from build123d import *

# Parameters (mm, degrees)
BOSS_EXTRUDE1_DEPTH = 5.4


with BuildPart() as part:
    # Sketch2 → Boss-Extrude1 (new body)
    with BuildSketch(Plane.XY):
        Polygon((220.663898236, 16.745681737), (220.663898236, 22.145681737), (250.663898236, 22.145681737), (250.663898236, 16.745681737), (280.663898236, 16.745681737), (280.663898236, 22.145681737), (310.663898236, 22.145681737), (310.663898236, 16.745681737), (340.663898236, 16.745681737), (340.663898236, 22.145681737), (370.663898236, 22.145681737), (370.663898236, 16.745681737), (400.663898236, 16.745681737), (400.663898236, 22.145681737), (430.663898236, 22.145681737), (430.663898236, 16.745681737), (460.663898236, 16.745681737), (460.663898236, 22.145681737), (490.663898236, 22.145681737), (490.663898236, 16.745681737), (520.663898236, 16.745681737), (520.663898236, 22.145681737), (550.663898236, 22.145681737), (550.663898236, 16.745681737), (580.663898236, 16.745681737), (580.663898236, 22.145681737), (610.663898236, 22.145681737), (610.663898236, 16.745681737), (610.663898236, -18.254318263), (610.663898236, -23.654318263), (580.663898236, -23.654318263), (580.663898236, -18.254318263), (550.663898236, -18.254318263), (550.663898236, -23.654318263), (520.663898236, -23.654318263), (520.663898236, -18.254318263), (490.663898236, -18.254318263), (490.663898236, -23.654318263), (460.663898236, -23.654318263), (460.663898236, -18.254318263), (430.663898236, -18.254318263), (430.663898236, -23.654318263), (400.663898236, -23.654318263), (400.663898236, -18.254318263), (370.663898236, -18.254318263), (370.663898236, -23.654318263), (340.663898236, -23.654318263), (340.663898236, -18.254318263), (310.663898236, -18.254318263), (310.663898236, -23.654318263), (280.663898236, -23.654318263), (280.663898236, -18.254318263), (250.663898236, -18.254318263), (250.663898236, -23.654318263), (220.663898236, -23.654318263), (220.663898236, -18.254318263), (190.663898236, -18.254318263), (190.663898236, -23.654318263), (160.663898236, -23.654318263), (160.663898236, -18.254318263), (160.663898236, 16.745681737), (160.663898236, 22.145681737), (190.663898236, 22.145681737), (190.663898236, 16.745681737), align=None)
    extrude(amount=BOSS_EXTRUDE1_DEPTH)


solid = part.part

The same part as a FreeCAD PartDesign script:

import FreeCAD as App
import Part
import Sketcher

doc = App.newDocument("Part")
body = doc.addObject("PartDesign::Body", "Body")

sketch1 = doc.addObject("Sketcher::SketchObject", "Sketch")
body.addObject(sketch1)
sketch1.AttachmentSupport = (doc.XY_Plane, [""])
sketch1.MapMode = "FlatFace"
sketch1.addGeometry(Part.LineSegment(App.Vector(220.663898, 22.145682, 0), App.Vector(220.663898, 16.745682, 0)), False)
sketch1.addGeometry(Part.LineSegment(App.Vector(220.663898, 16.745682, 0), App.Vector(190.663898, 16.745682, 0)), False)
sketch1.addGeometry(Part.LineSegment(App.Vector(190.663898, 16.745682, 0), App.Vector(190.663898, 22.145682, 0)), False)
sketch1.addGeometry(Part.LineSegment(App.Vector(190.663898, 22.145682, 0), App.Vector(160.663898, 22.145682, 0)), False)
sketch1.addGeometry(Part.LineSegment(App.Vector(160.663898, 22.145682, 0), App.Vector(160.663898, -23.654318, 0)), False)
sketch1.addGeometry(Part.LineSegment(App.Vector(160.663898, -23.654318, 0), App.Vector(190.663898, -23.654318, 0)), False)
sketch1.addGeometry(Part.LineSegment(App.Vector(190.663898, -23.654318, 0), App.Vector(190.663898, -18.254318, 0)), False)
sketch1.addGeometry(Part.LineSegment(App.Vector(190.663898, -18.254318, 0), App.Vector(220.663898, -18.254318, 0)), False)
sketch1.addGeometry(Part.LineSegment(App.Vector(220.663898, -18.254318, 0), App.Vector(220.663898, -23.654318, 0)), False)
sketch1.addGeometry(Part.LineSegment(App.Vector(220.663898, -23.654318, 0), App.Vector(250.663898, -23.654318, 0)), False)
sketch1.addGeometry(Part.LineSegment(App.Vector(250.663898, -23.654318, 0), App.Vector(250.663898, -18.254318, 0)), False)
sketch1.addGeometry(Part.LineSegment(App.Vector(250.663898, -18.254318, 0), App.Vector(280.663898, -18.254318, 0)), False)
sketch1.addGeometry(Part.LineSegment(App.Vector(280.663898, -18.254318, 0), App.Vector(280.663898, -23.654318, 0)), False)
sketch1.addGeometry(Part.LineSegment(App.Vector(280.663898, -23.654318, 0), App.Vector(310.663898, -23.654318, 0)), False)
sketch1.addGeometry(Part.LineSegment(App.Vector(310.663898, -23.654318, 0), App.Vector(310.663898, -18.254318, 0)), False)
sketch1.addGeometry(Part.LineSegment(App.Vector(310.663898, -18.254318, 0), App.Vector(340.663898, -18.254318, 0)), False)
sketch1.addGeometry(Part.LineSegment(App.Vector(340.663898, -18.254318, 0), App.Vector(340.663898, -23.654318, 0)), False)
sketch1.addGeometry(Part.LineSegment(App.Vector(340.663898, -23.654318, 0), App.Vector(370.663898, -23.654318, 0)), False)
sketch1.addGeometry(Part.LineSegment(App.Vector(370.663898, -23.654318, 0), App.Vector(370.663898, -18.254318, 0)), False)
sketch1.addGeometry(Part.LineSegment(App.Vector(370.663898, -18.254318, 0), App.Vector(400.663898, -18.254318, 0)), False)
sketch1.addGeometry(Part.LineSegment(App.Vector(400.663898, -18.254318, 0), App.Vector(400.663898, -23.654318, 0)), False)
sketch1.addGeometry(Part.LineSegment(App.Vector(400.663898, -23.654318, 0), App.Vector(430.663898, -23.654318, 0)), False)
sketch1.addGeometry(Part.LineSegment(App.Vector(430.663898, -23.654318, 0), App.Vector(430.663898, -18.254318, 0)), False)
sketch1.addGeometry(Part.LineSegment(App.Vector(430.663898, -18.254318, 0), App.Vector(460.663898, -18.254318, 0)), False)
sketch1.addGeometry(Part.LineSegment(App.Vector(460.663898, -18.254318, 0), App.Vector(460.663898, -23.654318, 0)), False)
sketch1.addGeometry(Part.LineSegment(App.Vector(460.663898, -23.654318, 0), App.Vector(490.663898, -23.654318, 0)), False)
sketch1.addGeometry(Part.LineSegment(App.Vector(490.663898, -23.654318, 0), App.Vector(490.663898, -18.254318, 0)), False)
sketch1.addGeometry(Part.LineSegment(App.Vector(490.663898, -18.254318, 0), App.Vector(520.663898, -18.254318, 0)), False)
sketch1.addGeometry(Part.LineSegment(App.Vector(520.663898, -18.254318, 0), App.Vector(520.663898, -23.654318, 0)), False)
sketch1.addGeometry(Part.LineSegment(App.Vector(520.663898, -23.654318, 0), App.Vector(550.663898, -23.654318, 0)), False)
sketch1.addGeometry(Part.LineSegment(App.Vector(550.663898, -23.654318, 0), App.Vector(550.663898, -18.254318, 0)), False)
sketch1.addGeometry(Part.LineSegment(App.Vector(550.663898, -18.254318, 0), App.Vector(580.663898, -18.254318, 0)), False)
sketch1.addGeometry(Part.LineSegment(App.Vector(580.663898, -18.254318, 0), App.Vector(580.663898, -23.654318, 0)), False)
sketch1.addGeometry(Part.LineSegment(App.Vector(580.663898, -23.654318, 0), App.Vector(610.663898, -23.654318, 0)), False)
sketch1.addGeometry(Part.LineSegment(App.Vector(610.663898, -23.654318, 0), App.Vector(610.663898, 22.145682, 0)), False)
sketch1.addGeometry(Part.LineSegment(App.Vector(610.663898, 22.145682, 0), App.Vector(580.663898, 22.145682, 0)), False)
sketch1.addGeometry(Part.LineSegment(App.Vector(580.663898, 22.145682, 0), App.Vector(580.663898, 16.745682, 0)), False)
sketch1.addGeometry(Part.LineSegment(App.Vector(580.663898, 16.745682, 0), App.Vector(550.663898, 16.745682, 0)), False)
sketch1.addGeometry(Part.LineSegment(App.Vector(550.663898, 16.745682, 0), App.Vector(550.663898, 22.145682, 0)), False)
sketch1.addGeometry(Part.LineSegment(App.Vector(550.663898, 22.145682, 0), App.Vector(520.663898, 22.145682, 0)), False)
sketch1.addGeometry(Part.LineSegment(App.Vector(520.663898, 22.145682, 0), App.Vector(520.663898, 16.745682, 0)), False)
sketch1.addGeometry(Part.LineSegment(App.Vector(520.663898, 16.745682, 0), App.Vector(490.663898, 16.745682, 0)), False)
sketch1.addGeometry(Part.LineSegment(App.Vector(490.663898, 16.745682, 0), App.Vector(490.663898, 22.145682, 0)), False)
sketch1.addGeometry(Part.LineSegment(App.Vector(490.663898, 22.145682, 0), App.Vector(460.663898, 22.145682, 0)), False)
sketch1.addGeometry(Part.LineSegment(App.Vector(460.663898, 22.145682, 0), App.Vector(460.663898, 16.745682, 0)), False)
sketch1.addGeometry(Part.LineSegment(App.Vector(460.663898, 16.745682, 0), App.Vector(430.663898, 16.745682, 0)), False)
sketch1.addGeometry(Part.LineSegment(App.Vector(430.663898, 16.745682, 0), App.Vector(430.663898, 22.145682, 0)), False)
sketch1.addGeometry(Part.LineSegment(App.Vector(430.663898, 22.145682, 0), App.Vector(400.663898, 22.145682, 0)), False)
sketch1.addGeometry(Part.LineSegment(App.Vector(400.663898, 22.145682, 0), App.Vector(400.663898, 16.745682, 0)), False)
sketch1.addGeometry(Part.LineSegment(App.Vector(400.663898, 16.745682, 0), App.Vector(370.663898, 16.745682, 0)), False)
sketch1.addGeometry(Part.LineSegment(App.Vector(370.663898, 16.745682, 0), App.Vector(370.663898, 22.145682, 0)), False)
sketch1.addGeometry(Part.LineSegment(App.Vector(370.663898, 22.145682, 0), App.Vector(340.663898, 22.145682, 0)), False)
sketch1.addGeometry(Part.LineSegment(App.Vector(340.663898, 22.145682, 0), App.Vector(340.663898, 16.745682, 0)), False)
sketch1.addGeometry(Part.LineSegment(App.Vector(340.663898, 16.745682, 0), App.Vector(310.663898, 16.745682, 0)), False)
sketch1.addGeometry(Part.LineSegment(App.Vector(310.663898, 16.745682, 0), App.Vector(310.663898, 22.145682, 0)), False)
sketch1.addGeometry(Part.LineSegment(App.Vector(310.663898, 22.145682, 0), App.Vector(280.663898, 22.145682, 0)), False)
sketch1.addGeometry(Part.LineSegment(App.Vector(280.663898, 22.145682, 0), App.Vector(280.663898, 16.745682, 0)), False)
sketch1.addGeometry(Part.LineSegment(App.Vector(280.663898, 16.745682, 0), App.Vector(250.663898, 16.745682, 0)), False)
sketch1.addGeometry(Part.LineSegment(App.Vector(250.663898, 16.745682, 0), App.Vector(250.663898, 22.145682, 0)), False)
sketch1.addGeometry(Part.LineSegment(App.Vector(250.663898, 22.145682, 0), App.Vector(220.663898, 22.145682, 0)), False)
sketch1.addConstraint(Sketcher.Constraint("Coincident", 0, 2, 1, 1))
sketch1.addConstraint(Sketcher.Constraint("Coincident", 1, 2, 2, 1))
sketch1.addConstraint(Sketcher.Constraint("Coincident", 2, 2, 3, 1))
sketch1.addConstraint(Sketcher.Constraint("Coincident", 3, 2, 4, 1))
sketch1.addConstraint(Sketcher.Constraint("Coincident", 4, 2, 5, 1))
sketch1.addConstraint(Sketcher.Constraint("Coincident", 5, 2, 6, 1))
sketch1.addConstraint(Sketcher.Constraint("Coincident", 6, 2, 7, 1))
sketch1.addConstraint(Sketcher.Constraint("Coincident", 7, 2, 8, 1))
sketch1.addConstraint(Sketcher.Constraint("Coincident", 8, 2, 9, 1))
sketch1.addConstraint(Sketcher.Constraint("Coincident", 9, 2, 10, 1))
sketch1.addConstraint(Sketcher.Constraint("Coincident", 10, 2, 11, 1))
sketch1.addConstraint(Sketcher.Constraint("Coincident", 11, 2, 12, 1))
sketch1.addConstraint(Sketcher.Constraint("Coincident", 12, 2, 13, 1))
sketch1.addConstraint(Sketcher.Constraint("Coincident", 13, 2, 14, 1))
sketch1.addConstraint(Sketcher.Constraint("Coincident", 14, 2, 15, 1))
sketch1.addConstraint(Sketcher.Constraint("Coincident", 15, 2, 16, 1))
sketch1.addConstraint(Sketcher.Constraint("Coincident", 16, 2, 17, 1))
sketch1.addConstraint(Sketcher.Constraint("Coincident", 17, 2, 18, 1))
sketch1.addConstraint(Sketcher.Constraint("Coincident", 18, 2, 19, 1))
sketch1.addConstraint(Sketcher.Constraint("Coincident", 19, 2, 20, 1))
sketch1.addConstraint(Sketcher.Constraint("Coincident", 20, 2, 21, 1))
sketch1.addConstraint(Sketcher.Constraint("Coincident", 21, 2, 22, 1))
sketch1.addConstraint(Sketcher.Constraint("Coincident", 22, 2, 23, 1))
sketch1.addConstraint(Sketcher.Constraint("Coincident", 23, 2, 24, 1))
sketch1.addConstraint(Sketcher.Constraint("Coincident", 24, 2, 25, 1))
sketch1.addConstraint(Sketcher.Constraint("Coincident", 25, 2, 26, 1))
sketch1.addConstraint(Sketcher.Constraint("Coincident", 26, 2, 27, 1))
sketch1.addConstraint(Sketcher.Constraint("Coincident", 27, 2, 28, 1))
sketch1.addConstraint(Sketcher.Constraint("Coincident", 28, 2, 29, 1))
sketch1.addConstraint(Sketcher.Constraint("Coincident", 29, 2, 30, 1))
sketch1.addConstraint(Sketcher.Constraint("Coincident", 30, 2, 31, 1))
sketch1.addConstraint(Sketcher.Constraint("Coincident", 31, 2, 32, 1))
sketch1.addConstraint(Sketcher.Constraint("Coincident", 32, 2, 33, 1))
sketch1.addConstraint(Sketcher.Constraint("Coincident", 33, 2, 34, 1))
sketch1.addConstraint(Sketcher.Constraint("Coincident", 34, 2, 35, 1))
sketch1.addConstraint(Sketcher.Constraint("Coincident", 35, 2, 36, 1))
sketch1.addConstraint(Sketcher.Constraint("Coincident", 36, 2, 37, 1))
sketch1.addConstraint(Sketcher.Constraint("Coincident", 37, 2, 38, 1))
sketch1.addConstraint(Sketcher.Constraint("Coincident", 38, 2, 39, 1))
sketch1.addConstraint(Sketcher.Constraint("Coincident", 39, 2, 40, 1))
sketch1.addConstraint(Sketcher.Constraint("Coincident", 40, 2, 41, 1))
sketch1.addConstraint(Sketcher.Constraint("Coincident", 41, 2, 42, 1))
sketch1.addConstraint(Sketcher.Constraint("Coincident", 42, 2, 43, 1))
sketch1.addConstraint(Sketcher.Constraint("Coincident", 43, 2, 44, 1))
sketch1.addConstraint(Sketcher.Constraint("Coincident", 44, 2, 45, 1))
sketch1.addConstraint(Sketcher.Constraint("Coincident", 45, 2, 46, 1))
sketch1.addConstraint(Sketcher.Constraint("Coincident", 46, 2, 47, 1))
sketch1.addConstraint(Sketcher.Constraint("Coincident", 47, 2, 48, 1))
sketch1.addConstraint(Sketcher.Constraint("Coincident", 48, 2, 49, 1))
sketch1.addConstraint(Sketcher.Constraint("Coincident", 49, 2, 50, 1))
sketch1.addConstraint(Sketcher.Constraint("Coincident", 50, 2, 51, 1))
sketch1.addConstraint(Sketcher.Constraint("Coincident", 51, 2, 52, 1))
sketch1.addConstraint(Sketcher.Constraint("Coincident", 52, 2, 53, 1))
sketch1.addConstraint(Sketcher.Constraint("Coincident", 53, 2, 54, 1))
sketch1.addConstraint(Sketcher.Constraint("Coincident", 54, 2, 55, 1))
sketch1.addConstraint(Sketcher.Constraint("Coincident", 55, 2, 56, 1))
sketch1.addConstraint(Sketcher.Constraint("Coincident", 56, 2, 57, 1))
sketch1.addConstraint(Sketcher.Constraint("Coincident", 57, 2, 58, 1))
sketch1.addConstraint(Sketcher.Constraint("Coincident", 58, 2, 59, 1))
sketch1.addConstraint(Sketcher.Constraint("Coincident", 59, 2, 0, 1))
sketch1.addConstraint(Sketcher.Constraint("Vertical", 0))
sketch1.addConstraint(Sketcher.Constraint("Horizontal", 1))
sketch1.addConstraint(Sketcher.Constraint("Vertical", 2))
sketch1.addConstraint(Sketcher.Constraint("Horizontal", 3))
sketch1.addConstraint(Sketcher.Constraint("Vertical", 4))
sketch1.addConstraint(Sketcher.Constraint("Horizontal", 5))
sketch1.addConstraint(Sketcher.Constraint("Vertical", 6))
sketch1.addConstraint(Sketcher.Constraint("Horizontal", 7))
sketch1.addConstraint(Sketcher.Constraint("Vertical", 8))
sketch1.addConstraint(Sketcher.Constraint("Horizontal", 9))
sketch1.addConstraint(Sketcher.Constraint("Vertical", 10))
sketch1.addConstraint(Sketcher.Constraint("Horizontal", 11))
sketch1.addConstraint(Sketcher.Constraint("Vertical", 12))
sketch1.addConstraint(Sketcher.Constraint("Horizontal", 13))
sketch1.addConstraint(Sketcher.Constraint("Vertical", 14))
sketch1.addConstraint(Sketcher.Constraint("Horizontal", 15))
sketch1.addConstraint(Sketcher.Constraint("Vertical", 16))
sketch1.addConstraint(Sketcher.Constraint("Horizontal", 17))
sketch1.addConstraint(Sketcher.Constraint("Vertical", 18))
sketch1.addConstraint(Sketcher.Constraint("Horizontal", 19))
sketch1.addConstraint(Sketcher.Constraint("Vertical", 20))
sketch1.addConstraint(Sketcher.Constraint("Horizontal", 21))
sketch1.addConstraint(Sketcher.Constraint("Vertical", 22))
sketch1.addConstraint(Sketcher.Constraint("Horizontal", 23))
sketch1.addConstraint(Sketcher.Constraint("Vertical", 24))
sketch1.addConstraint(Sketcher.Constraint("Horizontal", 25))
sketch1.addConstraint(Sketcher.Constraint("Vertical", 26))
sketch1.addConstraint(Sketcher.Constraint("Horizontal", 27))
sketch1.addConstraint(Sketcher.Constraint("Vertical", 28))
sketch1.addConstraint(Sketcher.Constraint("Horizontal", 29))
sketch1.addConstraint(Sketcher.Constraint("Vertical", 30))
sketch1.addConstraint(Sketcher.Constraint("Horizontal", 31))
sketch1.addConstraint(Sketcher.Constraint("Vertical", 32))
sketch1.addConstraint(Sketcher.Constraint("Horizontal", 33))
sketch1.addConstraint(Sketcher.Constraint("Vertical", 34))
sketch1.addConstraint(Sketcher.Constraint("Horizontal", 35))
sketch1.addConstraint(Sketcher.Constraint("Vertical", 36))
sketch1.addConstraint(Sketcher.Constraint("Horizontal", 37))
sketch1.addConstraint(Sketcher.Constraint("Vertical", 38))
sketch1.addConstraint(Sketcher.Constraint("Horizontal", 39))
sketch1.addConstraint(Sketcher.Constraint("Vertical", 40))
sketch1.addConstraint(Sketcher.Constraint("Horizontal", 41))
sketch1.addConstraint(Sketcher.Constraint("Vertical", 42))
sketch1.addConstraint(Sketcher.Constraint("Horizontal", 43))
sketch1.addConstraint(Sketcher.Constraint("Vertical", 44))
sketch1.addConstraint(Sketcher.Constraint("Horizontal", 45))
sketch1.addConstraint(Sketcher.Constraint("Vertical", 46))
sketch1.addConstraint(Sketcher.Constraint("Horizontal", 47))
sketch1.addConstraint(Sketcher.Constraint("Vertical", 48))
sketch1.addConstraint(Sketcher.Constraint("Horizontal", 49))
sketch1.addConstraint(Sketcher.Constraint("Vertical", 50))
sketch1.addConstraint(Sketcher.Constraint("Horizontal", 51))
sketch1.addConstraint(Sketcher.Constraint("Vertical", 52))
sketch1.addConstraint(Sketcher.Constraint("Horizontal", 53))
sketch1.addConstraint(Sketcher.Constraint("Vertical", 54))
sketch1.addConstraint(Sketcher.Constraint("Horizontal", 55))
sketch1.addConstraint(Sketcher.Constraint("Vertical", 56))
sketch1.addConstraint(Sketcher.Constraint("Horizontal", 57))
sketch1.addConstraint(Sketcher.Constraint("Vertical", 58))
sketch1.addConstraint(Sketcher.Constraint("Horizontal", 59))
sketch1.addConstraint(Sketcher.Constraint("Horizontal", 5, 2, 8, 2))
sketch1.addConstraint(Sketcher.Constraint("Horizontal", 7, 2, 10, 2))
sketch1.addConstraint(Sketcher.Constraint("Horizontal", 9, 2, 12, 2))
sketch1.addConstraint(Sketcher.Constraint("Horizontal", 11, 2, 14, 2))
sketch1.addConstraint(Sketcher.Constraint("Horizontal", 13, 2, 16, 2))
sketch1.addConstraint(Sketcher.Constraint("Horizontal", 15, 2, 18, 2))
sketch1.addConstraint(Sketcher.Constraint("Horizontal", 17, 2, 20, 2))
sketch1.addConstraint(Sketcher.Constraint("Horizontal", 19, 2, 22, 2))
sketch1.addConstraint(Sketcher.Constraint("Horizontal", 21, 2, 24, 2))
sketch1.addConstraint(Sketcher.Constraint("Horizontal", 23, 2, 26, 2))
sketch1.addConstraint(Sketcher.Constraint("Horizontal", 25, 2, 28, 2))
sketch1.addConstraint(Sketcher.Constraint("Horizontal", 27, 2, 30, 2))
sketch1.addConstraint(Sketcher.Constraint("Horizontal", 29, 2, 32, 2))
sketch1.addConstraint(Sketcher.Constraint("Horizontal", 3, 2, 34, 2))
sketch1.addConstraint(Sketcher.Constraint("Horizontal", 1, 2, 36, 2))
sketch1.addConstraint(Sketcher.Constraint("Horizontal", 35, 2, 38, 2))
sketch1.addConstraint(Sketcher.Constraint("Horizontal", 37, 2, 40, 2))
sketch1.addConstraint(Sketcher.Constraint("Horizontal", 39, 2, 42, 2))
sketch1.addConstraint(Sketcher.Constraint("Horizontal", 41, 2, 44, 2))
sketch1.addConstraint(Sketcher.Constraint("Horizontal", 43, 2, 46, 2))
sketch1.addConstraint(Sketcher.Constraint("Horizontal", 45, 2, 48, 2))
sketch1.addConstraint(Sketcher.Constraint("Horizontal", 47, 2, 50, 2))
sketch1.addConstraint(Sketcher.Constraint("Horizontal", 49, 2, 52, 2))
sketch1.addConstraint(Sketcher.Constraint("Horizontal", 51, 2, 54, 2))
sketch1.addConstraint(Sketcher.Constraint("Horizontal", 53, 2, 56, 2))
sketch1.addConstraint(Sketcher.Constraint("Horizontal", 55, 2, 58, 2))
sketch1.addConstraint(Sketcher.Constraint("Vertical", 2, 2, 5, 2))
sketch1.addConstraint(Sketcher.Constraint("Vertical", 0, 2, 7, 2))
sketch1.addConstraint(Sketcher.Constraint("Vertical", 32, 2, 35, 2))
sketch1.addConstraint(Sketcher.Constraint("Vertical", 30, 2, 37, 2))
sketch1.addConstraint(Sketcher.Constraint("Vertical", 28, 2, 39, 2))
sketch1.addConstraint(Sketcher.Constraint("Vertical", 26, 2, 41, 2))
sketch1.addConstraint(Sketcher.Constraint("Vertical", 24, 2, 43, 2))
sketch1.addConstraint(Sketcher.Constraint("Vertical", 22, 2, 45, 2))
sketch1.addConstraint(Sketcher.Constraint("Vertical", 20, 2, 47, 2))
sketch1.addConstraint(Sketcher.Constraint("Vertical", 18, 2, 49, 2))
sketch1.addConstraint(Sketcher.Constraint("Vertical", 16, 2, 51, 2))
sketch1.addConstraint(Sketcher.Constraint("Vertical", 14, 2, 53, 2))
sketch1.addConstraint(Sketcher.Constraint("Vertical", 12, 2, 55, 2))
sketch1.addConstraint(Sketcher.Constraint("Vertical", 10, 2, 57, 2))
sketch1.addConstraint(Sketcher.Constraint("Equal", 1, 3))
sketch1.addConstraint(Sketcher.Constraint("Equal", 7, 9))
sketch1.addConstraint(Sketcher.Constraint("Equal", 9, 11))
sketch1.addConstraint(Sketcher.Constraint("Equal", 11, 13))
sketch1.addConstraint(Sketcher.Constraint("Equal", 13, 15))
sketch1.addConstraint(Sketcher.Constraint("Equal", 15, 17))
sketch1.addConstraint(Sketcher.Constraint("Equal", 17, 19))
sketch1.addConstraint(Sketcher.Constraint("Equal", 19, 21))
sketch1.addConstraint(Sketcher.Constraint("Equal", 21, 23))
sketch1.addConstraint(Sketcher.Constraint("Equal", 23, 25))
sketch1.addConstraint(Sketcher.Constraint("Equal", 25, 27))
sketch1.addConstraint(Sketcher.Constraint("Equal", 27, 29))
sketch1.addConstraint(Sketcher.Constraint("Equal", 29, 31))
sketch1.addConstraint(Sketcher.Constraint("Equal", 31, 33))
sketch1.addConstraint(Sketcher.Constraint("Equal", 2, 6))
sketch1.addConstraint(Sketcher.Constraint("DistanceX", 1, 2, 1, 1, 30.0))
sketch1.addConstraint(Sketcher.Constraint("DistanceY", 0, 2, 0, 1, 5.4))
sketch1.addConstraint(Sketcher.Constraint("DistanceY", 4, 2, 4, 1, 45.8))
sketch1.addConstraint(Sketcher.Constraint("DistanceX", -1, 1, 0, 2, 220.663898))
sketch1.addConstraint(Sketcher.Constraint("DistanceY", -1, 1, 0, 2, 16.745682))
pad1 = doc.addObject("PartDesign::Pad", "Pad")
body.addObject(pad1)
pad1.Profile = sketch1
pad1.Length = 5.4

doc.recompute()
